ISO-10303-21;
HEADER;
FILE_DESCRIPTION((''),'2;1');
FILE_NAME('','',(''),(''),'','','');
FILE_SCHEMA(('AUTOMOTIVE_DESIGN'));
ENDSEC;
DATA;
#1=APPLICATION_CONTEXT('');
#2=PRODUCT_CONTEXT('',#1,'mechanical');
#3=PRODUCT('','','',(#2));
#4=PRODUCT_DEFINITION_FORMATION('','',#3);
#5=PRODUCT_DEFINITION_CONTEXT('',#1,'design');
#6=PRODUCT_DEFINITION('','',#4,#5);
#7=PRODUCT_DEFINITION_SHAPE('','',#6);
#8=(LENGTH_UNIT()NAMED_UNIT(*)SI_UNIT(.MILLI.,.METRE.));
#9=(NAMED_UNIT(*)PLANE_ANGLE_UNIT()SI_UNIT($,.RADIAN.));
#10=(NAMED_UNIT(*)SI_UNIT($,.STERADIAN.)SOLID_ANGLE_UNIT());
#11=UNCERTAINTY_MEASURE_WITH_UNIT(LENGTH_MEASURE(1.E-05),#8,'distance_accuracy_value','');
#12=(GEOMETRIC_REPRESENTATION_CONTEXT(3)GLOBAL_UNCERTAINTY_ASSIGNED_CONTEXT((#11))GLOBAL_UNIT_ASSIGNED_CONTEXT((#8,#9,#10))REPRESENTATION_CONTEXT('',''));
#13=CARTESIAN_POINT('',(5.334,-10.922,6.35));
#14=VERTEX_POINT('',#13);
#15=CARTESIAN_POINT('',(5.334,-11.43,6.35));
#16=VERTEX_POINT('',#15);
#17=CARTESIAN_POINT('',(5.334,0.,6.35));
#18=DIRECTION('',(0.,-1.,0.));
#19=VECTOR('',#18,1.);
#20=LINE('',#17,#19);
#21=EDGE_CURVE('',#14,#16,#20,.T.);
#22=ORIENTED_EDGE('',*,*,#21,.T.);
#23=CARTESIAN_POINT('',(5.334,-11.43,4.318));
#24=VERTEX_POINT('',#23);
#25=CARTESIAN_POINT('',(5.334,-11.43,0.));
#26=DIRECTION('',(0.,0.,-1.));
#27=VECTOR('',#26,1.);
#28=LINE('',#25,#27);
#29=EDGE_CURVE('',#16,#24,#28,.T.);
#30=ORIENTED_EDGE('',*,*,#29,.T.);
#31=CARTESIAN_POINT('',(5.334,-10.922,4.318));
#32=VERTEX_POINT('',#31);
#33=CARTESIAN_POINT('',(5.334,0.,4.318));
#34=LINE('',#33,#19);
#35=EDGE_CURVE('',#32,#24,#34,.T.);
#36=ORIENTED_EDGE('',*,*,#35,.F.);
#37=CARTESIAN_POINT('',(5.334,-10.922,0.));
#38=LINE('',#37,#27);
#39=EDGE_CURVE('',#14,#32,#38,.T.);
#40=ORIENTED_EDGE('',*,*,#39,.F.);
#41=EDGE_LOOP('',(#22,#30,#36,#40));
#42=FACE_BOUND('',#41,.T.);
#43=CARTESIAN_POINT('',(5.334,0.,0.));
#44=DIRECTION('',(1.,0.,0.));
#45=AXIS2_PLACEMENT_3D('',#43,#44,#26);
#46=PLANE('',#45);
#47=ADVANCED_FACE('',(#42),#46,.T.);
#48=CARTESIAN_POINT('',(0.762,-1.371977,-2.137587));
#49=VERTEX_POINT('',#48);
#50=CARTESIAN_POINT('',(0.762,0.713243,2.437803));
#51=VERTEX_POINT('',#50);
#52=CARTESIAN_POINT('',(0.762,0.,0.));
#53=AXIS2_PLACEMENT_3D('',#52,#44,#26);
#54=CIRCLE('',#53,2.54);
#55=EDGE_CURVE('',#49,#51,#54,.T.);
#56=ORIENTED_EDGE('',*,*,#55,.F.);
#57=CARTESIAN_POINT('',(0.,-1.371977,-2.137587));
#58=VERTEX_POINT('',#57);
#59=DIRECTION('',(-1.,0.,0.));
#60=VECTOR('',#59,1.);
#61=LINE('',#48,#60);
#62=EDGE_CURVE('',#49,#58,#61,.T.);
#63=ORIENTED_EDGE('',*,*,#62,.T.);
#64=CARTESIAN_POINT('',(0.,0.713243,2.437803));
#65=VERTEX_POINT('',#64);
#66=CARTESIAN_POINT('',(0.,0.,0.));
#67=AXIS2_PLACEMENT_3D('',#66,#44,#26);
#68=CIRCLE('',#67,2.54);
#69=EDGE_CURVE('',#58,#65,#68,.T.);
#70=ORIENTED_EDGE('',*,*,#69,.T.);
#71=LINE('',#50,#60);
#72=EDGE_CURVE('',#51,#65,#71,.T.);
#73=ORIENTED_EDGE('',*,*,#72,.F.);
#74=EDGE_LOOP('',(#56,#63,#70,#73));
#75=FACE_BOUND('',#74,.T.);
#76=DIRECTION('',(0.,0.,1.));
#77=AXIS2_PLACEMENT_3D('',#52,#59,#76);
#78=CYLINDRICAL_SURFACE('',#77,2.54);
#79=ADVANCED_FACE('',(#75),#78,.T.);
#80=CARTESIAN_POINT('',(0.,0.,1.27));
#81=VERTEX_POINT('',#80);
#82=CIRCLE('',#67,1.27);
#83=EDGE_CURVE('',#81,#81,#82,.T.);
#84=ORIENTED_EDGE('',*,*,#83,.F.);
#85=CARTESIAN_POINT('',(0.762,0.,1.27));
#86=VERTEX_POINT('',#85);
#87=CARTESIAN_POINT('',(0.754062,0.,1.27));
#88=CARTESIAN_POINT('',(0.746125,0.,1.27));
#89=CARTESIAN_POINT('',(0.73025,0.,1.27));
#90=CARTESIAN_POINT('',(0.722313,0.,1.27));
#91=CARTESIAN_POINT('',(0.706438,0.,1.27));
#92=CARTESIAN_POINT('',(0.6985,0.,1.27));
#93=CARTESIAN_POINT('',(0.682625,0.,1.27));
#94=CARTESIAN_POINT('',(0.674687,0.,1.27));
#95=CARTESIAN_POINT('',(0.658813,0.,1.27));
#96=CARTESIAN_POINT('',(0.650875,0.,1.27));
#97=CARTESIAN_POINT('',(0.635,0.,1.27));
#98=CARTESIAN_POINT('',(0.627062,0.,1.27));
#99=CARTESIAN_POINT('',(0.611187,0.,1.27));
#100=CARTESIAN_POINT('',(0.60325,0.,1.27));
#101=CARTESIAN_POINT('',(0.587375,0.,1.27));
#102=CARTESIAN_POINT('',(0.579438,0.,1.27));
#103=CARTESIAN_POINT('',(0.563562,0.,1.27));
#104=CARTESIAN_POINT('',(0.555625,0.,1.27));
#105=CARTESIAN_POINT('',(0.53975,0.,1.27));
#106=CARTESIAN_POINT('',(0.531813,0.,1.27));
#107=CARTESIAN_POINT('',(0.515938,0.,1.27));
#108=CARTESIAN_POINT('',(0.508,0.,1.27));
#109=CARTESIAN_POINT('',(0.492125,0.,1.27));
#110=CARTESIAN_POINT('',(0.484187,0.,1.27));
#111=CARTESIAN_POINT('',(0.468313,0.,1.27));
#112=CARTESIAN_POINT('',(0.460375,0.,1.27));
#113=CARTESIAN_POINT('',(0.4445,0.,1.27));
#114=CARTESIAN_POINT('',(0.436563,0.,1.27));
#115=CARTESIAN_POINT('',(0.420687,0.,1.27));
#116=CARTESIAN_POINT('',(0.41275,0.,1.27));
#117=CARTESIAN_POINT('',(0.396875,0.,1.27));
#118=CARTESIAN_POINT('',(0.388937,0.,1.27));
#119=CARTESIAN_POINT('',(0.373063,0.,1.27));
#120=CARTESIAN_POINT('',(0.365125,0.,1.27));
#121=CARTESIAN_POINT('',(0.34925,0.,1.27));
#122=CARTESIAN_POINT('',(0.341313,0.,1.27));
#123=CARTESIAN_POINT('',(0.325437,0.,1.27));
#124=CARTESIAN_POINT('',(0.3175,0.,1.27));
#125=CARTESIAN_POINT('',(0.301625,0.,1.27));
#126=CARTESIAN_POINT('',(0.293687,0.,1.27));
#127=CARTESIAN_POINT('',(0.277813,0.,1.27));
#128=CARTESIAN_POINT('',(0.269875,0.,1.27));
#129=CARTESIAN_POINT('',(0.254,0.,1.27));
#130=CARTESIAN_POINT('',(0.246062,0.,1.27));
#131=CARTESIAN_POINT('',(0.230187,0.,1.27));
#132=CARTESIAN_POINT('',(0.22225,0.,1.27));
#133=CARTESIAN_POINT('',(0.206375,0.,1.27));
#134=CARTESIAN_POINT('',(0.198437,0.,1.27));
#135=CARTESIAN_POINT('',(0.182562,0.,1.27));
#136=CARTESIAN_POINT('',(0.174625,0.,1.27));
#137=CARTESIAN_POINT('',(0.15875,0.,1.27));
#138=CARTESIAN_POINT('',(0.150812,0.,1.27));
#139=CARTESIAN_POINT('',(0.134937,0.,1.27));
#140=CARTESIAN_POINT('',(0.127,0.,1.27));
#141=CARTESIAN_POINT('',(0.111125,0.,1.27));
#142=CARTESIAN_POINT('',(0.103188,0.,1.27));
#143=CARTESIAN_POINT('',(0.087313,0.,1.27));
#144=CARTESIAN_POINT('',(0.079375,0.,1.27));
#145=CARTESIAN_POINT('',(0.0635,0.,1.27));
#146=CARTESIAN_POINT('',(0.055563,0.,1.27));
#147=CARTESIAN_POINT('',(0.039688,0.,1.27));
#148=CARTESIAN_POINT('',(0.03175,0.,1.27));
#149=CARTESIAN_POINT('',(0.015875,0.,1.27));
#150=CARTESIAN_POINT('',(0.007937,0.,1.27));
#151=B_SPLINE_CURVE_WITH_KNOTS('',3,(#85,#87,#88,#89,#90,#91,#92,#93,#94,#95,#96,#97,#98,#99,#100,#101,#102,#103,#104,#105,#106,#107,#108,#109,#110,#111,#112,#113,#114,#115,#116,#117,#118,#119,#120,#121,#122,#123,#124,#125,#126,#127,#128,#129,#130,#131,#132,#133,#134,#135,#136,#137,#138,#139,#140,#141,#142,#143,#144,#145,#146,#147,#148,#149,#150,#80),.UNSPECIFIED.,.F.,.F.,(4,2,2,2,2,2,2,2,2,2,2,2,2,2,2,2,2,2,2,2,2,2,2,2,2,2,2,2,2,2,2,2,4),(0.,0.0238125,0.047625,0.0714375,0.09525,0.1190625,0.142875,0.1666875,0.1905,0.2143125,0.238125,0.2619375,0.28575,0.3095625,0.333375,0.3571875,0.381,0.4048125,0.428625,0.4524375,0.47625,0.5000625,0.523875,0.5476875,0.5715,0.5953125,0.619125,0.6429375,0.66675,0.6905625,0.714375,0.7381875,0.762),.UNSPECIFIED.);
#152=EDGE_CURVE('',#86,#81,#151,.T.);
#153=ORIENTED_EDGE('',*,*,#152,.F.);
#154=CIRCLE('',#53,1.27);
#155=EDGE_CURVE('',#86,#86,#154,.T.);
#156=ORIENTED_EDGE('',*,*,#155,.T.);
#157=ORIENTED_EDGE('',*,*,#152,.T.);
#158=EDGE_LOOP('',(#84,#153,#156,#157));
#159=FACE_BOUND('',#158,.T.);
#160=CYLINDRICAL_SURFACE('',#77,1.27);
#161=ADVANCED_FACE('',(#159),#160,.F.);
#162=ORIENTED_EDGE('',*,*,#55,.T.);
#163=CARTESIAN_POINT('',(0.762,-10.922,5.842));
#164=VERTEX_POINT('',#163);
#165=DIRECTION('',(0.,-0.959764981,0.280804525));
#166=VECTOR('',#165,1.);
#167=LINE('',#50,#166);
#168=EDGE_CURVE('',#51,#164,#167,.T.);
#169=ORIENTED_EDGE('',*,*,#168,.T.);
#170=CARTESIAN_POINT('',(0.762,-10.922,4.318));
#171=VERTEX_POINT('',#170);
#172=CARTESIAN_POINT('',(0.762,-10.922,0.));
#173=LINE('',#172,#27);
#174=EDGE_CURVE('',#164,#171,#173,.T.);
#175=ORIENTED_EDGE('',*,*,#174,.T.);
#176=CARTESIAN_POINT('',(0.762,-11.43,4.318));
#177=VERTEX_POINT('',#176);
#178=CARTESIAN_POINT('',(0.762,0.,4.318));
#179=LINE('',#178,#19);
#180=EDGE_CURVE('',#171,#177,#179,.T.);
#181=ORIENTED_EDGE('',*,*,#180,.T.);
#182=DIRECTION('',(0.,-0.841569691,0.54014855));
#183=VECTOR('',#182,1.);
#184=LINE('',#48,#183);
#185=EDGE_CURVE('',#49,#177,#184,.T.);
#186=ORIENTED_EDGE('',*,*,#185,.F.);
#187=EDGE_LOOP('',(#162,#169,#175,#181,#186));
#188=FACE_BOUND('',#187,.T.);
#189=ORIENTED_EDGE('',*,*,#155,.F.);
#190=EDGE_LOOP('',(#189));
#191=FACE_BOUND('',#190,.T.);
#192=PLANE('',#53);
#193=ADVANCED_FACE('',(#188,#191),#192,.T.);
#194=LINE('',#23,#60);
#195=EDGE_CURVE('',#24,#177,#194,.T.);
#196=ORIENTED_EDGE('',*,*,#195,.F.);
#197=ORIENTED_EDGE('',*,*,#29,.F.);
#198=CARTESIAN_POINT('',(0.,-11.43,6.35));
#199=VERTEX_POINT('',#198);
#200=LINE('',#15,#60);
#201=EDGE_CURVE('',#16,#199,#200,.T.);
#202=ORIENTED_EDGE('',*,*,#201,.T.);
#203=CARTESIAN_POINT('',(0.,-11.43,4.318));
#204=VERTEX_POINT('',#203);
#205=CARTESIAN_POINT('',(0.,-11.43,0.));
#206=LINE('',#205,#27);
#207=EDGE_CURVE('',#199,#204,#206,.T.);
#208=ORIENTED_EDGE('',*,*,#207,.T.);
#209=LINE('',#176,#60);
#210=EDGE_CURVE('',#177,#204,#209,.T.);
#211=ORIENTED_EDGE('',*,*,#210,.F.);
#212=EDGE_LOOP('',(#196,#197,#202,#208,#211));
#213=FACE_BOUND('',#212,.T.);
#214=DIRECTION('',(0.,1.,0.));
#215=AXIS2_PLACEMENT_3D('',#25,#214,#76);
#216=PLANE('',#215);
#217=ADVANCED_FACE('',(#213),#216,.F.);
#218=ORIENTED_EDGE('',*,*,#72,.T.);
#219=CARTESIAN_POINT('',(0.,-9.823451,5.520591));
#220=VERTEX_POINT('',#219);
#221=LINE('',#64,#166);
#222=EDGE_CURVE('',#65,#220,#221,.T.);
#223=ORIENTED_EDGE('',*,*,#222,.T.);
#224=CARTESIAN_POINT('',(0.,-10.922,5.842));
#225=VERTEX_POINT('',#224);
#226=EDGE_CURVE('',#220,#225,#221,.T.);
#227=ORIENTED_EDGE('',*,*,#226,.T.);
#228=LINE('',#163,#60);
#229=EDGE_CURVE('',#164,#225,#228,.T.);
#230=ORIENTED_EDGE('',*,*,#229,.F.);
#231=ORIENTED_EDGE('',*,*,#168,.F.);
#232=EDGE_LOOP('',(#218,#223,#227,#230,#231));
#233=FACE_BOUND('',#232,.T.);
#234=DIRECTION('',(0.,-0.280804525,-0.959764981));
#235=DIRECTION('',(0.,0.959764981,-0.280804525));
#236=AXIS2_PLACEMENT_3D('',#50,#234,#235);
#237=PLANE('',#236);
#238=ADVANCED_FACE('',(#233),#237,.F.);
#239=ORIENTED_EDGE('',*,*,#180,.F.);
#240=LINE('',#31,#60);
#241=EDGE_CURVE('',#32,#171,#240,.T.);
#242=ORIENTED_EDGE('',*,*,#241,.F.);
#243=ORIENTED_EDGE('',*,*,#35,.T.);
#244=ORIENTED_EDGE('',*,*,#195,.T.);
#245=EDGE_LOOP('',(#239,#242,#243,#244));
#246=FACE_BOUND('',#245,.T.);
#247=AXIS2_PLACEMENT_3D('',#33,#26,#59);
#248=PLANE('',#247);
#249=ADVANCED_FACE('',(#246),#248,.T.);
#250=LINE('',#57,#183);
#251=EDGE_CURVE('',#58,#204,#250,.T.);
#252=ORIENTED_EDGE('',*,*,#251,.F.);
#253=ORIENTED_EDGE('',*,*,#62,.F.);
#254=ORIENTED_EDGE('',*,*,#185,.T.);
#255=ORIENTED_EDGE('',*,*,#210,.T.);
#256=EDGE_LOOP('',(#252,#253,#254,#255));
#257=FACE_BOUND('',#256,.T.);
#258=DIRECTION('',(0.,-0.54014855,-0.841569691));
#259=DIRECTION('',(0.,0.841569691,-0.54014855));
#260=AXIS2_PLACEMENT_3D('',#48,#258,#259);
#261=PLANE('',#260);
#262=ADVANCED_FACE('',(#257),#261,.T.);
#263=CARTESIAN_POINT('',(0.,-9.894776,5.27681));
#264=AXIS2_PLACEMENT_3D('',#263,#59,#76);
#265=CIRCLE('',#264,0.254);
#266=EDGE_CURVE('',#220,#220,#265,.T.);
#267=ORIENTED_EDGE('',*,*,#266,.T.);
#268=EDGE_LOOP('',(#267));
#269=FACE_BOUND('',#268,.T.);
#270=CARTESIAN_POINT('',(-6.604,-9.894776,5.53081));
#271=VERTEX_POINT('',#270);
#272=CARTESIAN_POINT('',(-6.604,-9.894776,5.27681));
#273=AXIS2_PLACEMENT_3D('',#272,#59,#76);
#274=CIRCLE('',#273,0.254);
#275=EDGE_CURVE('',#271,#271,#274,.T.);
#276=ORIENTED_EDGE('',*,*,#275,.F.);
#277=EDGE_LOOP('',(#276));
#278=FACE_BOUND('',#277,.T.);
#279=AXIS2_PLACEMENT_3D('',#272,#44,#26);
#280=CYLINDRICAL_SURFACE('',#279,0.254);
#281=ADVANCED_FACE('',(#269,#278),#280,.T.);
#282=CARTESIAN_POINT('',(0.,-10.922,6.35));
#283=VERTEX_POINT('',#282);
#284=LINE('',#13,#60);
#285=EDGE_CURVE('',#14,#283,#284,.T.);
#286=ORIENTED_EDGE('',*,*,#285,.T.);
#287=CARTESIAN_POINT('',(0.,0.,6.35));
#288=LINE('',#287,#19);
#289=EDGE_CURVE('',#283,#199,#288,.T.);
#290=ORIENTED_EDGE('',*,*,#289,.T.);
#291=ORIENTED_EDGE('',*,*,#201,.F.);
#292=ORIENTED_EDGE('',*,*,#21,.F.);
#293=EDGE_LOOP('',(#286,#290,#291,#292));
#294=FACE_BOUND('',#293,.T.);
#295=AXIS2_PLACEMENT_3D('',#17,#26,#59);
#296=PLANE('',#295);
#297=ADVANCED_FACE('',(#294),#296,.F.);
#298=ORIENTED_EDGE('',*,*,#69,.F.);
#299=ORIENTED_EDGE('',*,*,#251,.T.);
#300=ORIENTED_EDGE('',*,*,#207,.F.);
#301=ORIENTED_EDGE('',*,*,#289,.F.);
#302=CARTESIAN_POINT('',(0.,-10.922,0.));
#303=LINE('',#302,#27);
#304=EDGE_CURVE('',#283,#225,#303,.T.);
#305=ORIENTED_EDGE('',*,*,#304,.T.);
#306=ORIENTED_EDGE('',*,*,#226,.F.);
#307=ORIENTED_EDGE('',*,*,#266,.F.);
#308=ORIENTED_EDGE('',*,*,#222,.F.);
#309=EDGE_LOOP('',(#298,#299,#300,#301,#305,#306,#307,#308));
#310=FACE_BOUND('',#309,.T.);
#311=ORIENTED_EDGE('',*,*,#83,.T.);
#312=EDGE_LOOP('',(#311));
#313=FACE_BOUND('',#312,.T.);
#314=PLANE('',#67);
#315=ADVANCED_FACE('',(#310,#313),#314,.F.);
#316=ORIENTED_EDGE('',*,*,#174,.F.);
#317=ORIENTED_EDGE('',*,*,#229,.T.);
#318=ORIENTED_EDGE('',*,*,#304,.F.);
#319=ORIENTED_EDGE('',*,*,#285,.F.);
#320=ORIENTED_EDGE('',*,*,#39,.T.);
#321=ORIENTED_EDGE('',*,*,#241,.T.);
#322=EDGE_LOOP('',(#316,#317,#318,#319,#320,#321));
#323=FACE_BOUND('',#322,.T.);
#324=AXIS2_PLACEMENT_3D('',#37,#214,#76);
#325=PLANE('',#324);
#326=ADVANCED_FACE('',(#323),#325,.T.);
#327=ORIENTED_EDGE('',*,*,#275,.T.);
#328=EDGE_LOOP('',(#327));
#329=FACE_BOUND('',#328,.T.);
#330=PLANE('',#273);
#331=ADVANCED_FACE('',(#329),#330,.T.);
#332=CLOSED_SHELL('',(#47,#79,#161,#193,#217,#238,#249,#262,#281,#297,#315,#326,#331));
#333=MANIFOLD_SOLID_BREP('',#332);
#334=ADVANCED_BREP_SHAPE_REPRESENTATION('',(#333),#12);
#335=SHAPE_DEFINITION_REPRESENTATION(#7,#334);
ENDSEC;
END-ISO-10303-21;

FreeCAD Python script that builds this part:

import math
import FreeCAD as App
import Part
import Sketcher
Q = App.Units.Quantity

doc = App.newDocument("Part")
body = doc.addObject("PartDesign::Body", "Body")

sketch1 = body.newObject("Sketcher::SketchObject", "Sketch")
sketch1.AttachmentSupport = (doc.getObject("YZ_Plane"), [""])
sketch1.MapMode = "FlatFace"
sketch1.addGeometry(Part.LineSegment(App.Vector(-10.9, 6.3, 0), App.Vector(-11.4, 6.3, 0)), False)
sketch1.addGeometry(Part.LineSegment(App.Vector(-11.4, 6.3, 0), App.Vector(-11.4, 4.3, 0)), False)
sketch1.addGeometry(Part.LineSegment(App.Vector(-11.4, 4.3, 0), App.Vector(-10.9, 4.3, 0)), False)
sketch1.addGeometry(Part.LineSegment(App.Vector(-10.9, 4.3, 0), App.Vector(-10.9, 6.3, 0)), False)
sketch1.addConstraint(Sketcher.Constraint("Coincident", 0, 2, 1, 1))
sketch1.addConstraint(Sketcher.Constraint("Coincident", 1, 2, 2, 1))
sketch1.addConstraint(Sketcher.Constraint("Coincident", 2, 2, 3, 1))
sketch1.addConstraint(Sketcher.Constraint("Coincident", 3, 2, 0, 1))
sketch1.addConstraint(Sketcher.Constraint("Horizontal", 0))
sketch1.addConstraint(Sketcher.Constraint("Vertical", 1))
sketch1.addConstraint(Sketcher.Constraint("Horizontal", 2))
sketch1.addConstraint(Sketcher.Constraint("Vertical", 3))
sketch1.addConstraint(Sketcher.Constraint("DistanceX", 0, 2, 0, 1, Q("0.02 in")))
sketch1.addConstraint(Sketcher.Constraint("DistanceY", 1, 2, 1, 1, Q("0.08 in")))
sketch1.addConstraint(Sketcher.Constraint("DistanceX", 0, 2, -1, 1, Q("0.45 in")))
sketch1.addConstraint(Sketcher.Constraint("DistanceY", -1, 1, 0, 2, Q("0.25 in")))
pad1 = body.newObject("PartDesign::Pad", "Pad")
pad1.Profile = sketch1
pad1.Length = Q("0.21 in")

sketch2 = body.newObject("Sketcher::SketchObject", "Sketch001")
sketch2.AttachmentSupport = (doc.getObject("YZ_Plane"), [""])
sketch2.MapMode = "FlatFace"
sketch2.addGeometry(Part.LineSegment(App.Vector(-11.4, 4.3, 0), App.Vector(-1.4, -2.1, 0)), False)
sketch2.addGeometry(Part.ArcOfCircle(Part.Circle(App.Vector(0, 0, 0), App.Vector(0, 0, 1), 2.5), math.radians(-123), math.radians(74)), False)
sketch2.addGeometry(Part.LineSegment(App.Vector(0.7, 2.4, 0), App.Vector(-10.9, 5.8, 0)), False)
sketch2.addGeometry(Part.LineSegment(App.Vector(-10.9, 5.8, 0), App.Vector(-10.9, 4.3, 0)), False)
sketch2.addGeometry(Part.LineSegment(App.Vector(-10.9, 4.3, 0), App.Vector(-11.4, 4.3, 0)), False)
sketch2.addGeometry(Part.Circle(App.Vector(0, 0, 0), App.Vector(0, 0, 1), 1.3), False)
sketch2.addConstraint(Sketcher.Constraint("Tangent", 0, 2, 1, 1))
sketch2.addConstraint(Sketcher.Constraint("Tangent", 1, 2, 2, 1))
sketch2.addConstraint(Sketcher.Constraint("Coincident", 2, 2, 3, 1))
sketch2.addConstraint(Sketcher.Constraint("Coincident", 3, 2, 4, 1))
sketch2.addConstraint(Sketcher.Constraint("Coincident", 4, 2, 0, 1))
sketch2.addConstraint(Sketcher.Constraint("Vertical", 3))
sketch2.addConstraint(Sketcher.Constraint("Horizontal", 4))
sketch2.addConstraint(Sketcher.Constraint("Coincident", 1, 3, -1, 1))
sketch2.addConstraint(Sketcher.Constraint("Coincident", 5, 3, -1, 1))
sketch2.addConstraint(Sketcher.Constraint("Diameter", 5, Q("0.1 in")))
sketch2.addConstraint(Sketcher.Constraint("Radius", 1, Q("0.1 in")))
sketch2.addConstraint(Sketcher.Constraint("DistanceX", 4, 2, 4, 1, Q("0.02 in")))
sketch2.addConstraint(Sketcher.Constraint("DistanceY", 3, 2, 3, 1, Q("0.06 in")))
sketch2.addConstraint(Sketcher.Constraint("DistanceX", 2, 2, -1, 1, Q("0.43 in")))
sketch2.addConstraint(Sketcher.Constraint("DistanceY", -1, 1, 2, 2, Q("0.23 in")))
pad2 = body.newObject("PartDesign::Pad", "Pad001")
pad2.Profile = sketch2
pad2.Length = Q("0.03 in")

sketch3 = body.newObject("Sketcher::SketchObject", "Sketch002")
sketch3.AttachmentSupport = (doc.getObject("YZ_Plane"), [""])
sketch3.MapMode = "FlatFace"
sketch3.addGeometry(Part.Circle(App.Vector(-9.89, 5.28, 0), App.Vector(0, 0, 1), 0.25), False)
sketch3.addConstraint(Sketcher.Constraint("Diameter", 0, Q("0.02 in")))
sketch3.addConstraint(Sketcher.Constraint("DistanceY", -1, 1, 0, 3, Q("5.27681 mm")))
sketch3.addConstraint(Sketcher.Constraint("DistanceX", 0, 3, -1, 1, Q("9.894776 mm")))
pad3 = body.newObject("PartDesign::Pad", "Pad002")
pad3.Profile = sketch3
pad3.Length = Q("0.26 in")
pad3.Reversed = True

doc.recompute()
